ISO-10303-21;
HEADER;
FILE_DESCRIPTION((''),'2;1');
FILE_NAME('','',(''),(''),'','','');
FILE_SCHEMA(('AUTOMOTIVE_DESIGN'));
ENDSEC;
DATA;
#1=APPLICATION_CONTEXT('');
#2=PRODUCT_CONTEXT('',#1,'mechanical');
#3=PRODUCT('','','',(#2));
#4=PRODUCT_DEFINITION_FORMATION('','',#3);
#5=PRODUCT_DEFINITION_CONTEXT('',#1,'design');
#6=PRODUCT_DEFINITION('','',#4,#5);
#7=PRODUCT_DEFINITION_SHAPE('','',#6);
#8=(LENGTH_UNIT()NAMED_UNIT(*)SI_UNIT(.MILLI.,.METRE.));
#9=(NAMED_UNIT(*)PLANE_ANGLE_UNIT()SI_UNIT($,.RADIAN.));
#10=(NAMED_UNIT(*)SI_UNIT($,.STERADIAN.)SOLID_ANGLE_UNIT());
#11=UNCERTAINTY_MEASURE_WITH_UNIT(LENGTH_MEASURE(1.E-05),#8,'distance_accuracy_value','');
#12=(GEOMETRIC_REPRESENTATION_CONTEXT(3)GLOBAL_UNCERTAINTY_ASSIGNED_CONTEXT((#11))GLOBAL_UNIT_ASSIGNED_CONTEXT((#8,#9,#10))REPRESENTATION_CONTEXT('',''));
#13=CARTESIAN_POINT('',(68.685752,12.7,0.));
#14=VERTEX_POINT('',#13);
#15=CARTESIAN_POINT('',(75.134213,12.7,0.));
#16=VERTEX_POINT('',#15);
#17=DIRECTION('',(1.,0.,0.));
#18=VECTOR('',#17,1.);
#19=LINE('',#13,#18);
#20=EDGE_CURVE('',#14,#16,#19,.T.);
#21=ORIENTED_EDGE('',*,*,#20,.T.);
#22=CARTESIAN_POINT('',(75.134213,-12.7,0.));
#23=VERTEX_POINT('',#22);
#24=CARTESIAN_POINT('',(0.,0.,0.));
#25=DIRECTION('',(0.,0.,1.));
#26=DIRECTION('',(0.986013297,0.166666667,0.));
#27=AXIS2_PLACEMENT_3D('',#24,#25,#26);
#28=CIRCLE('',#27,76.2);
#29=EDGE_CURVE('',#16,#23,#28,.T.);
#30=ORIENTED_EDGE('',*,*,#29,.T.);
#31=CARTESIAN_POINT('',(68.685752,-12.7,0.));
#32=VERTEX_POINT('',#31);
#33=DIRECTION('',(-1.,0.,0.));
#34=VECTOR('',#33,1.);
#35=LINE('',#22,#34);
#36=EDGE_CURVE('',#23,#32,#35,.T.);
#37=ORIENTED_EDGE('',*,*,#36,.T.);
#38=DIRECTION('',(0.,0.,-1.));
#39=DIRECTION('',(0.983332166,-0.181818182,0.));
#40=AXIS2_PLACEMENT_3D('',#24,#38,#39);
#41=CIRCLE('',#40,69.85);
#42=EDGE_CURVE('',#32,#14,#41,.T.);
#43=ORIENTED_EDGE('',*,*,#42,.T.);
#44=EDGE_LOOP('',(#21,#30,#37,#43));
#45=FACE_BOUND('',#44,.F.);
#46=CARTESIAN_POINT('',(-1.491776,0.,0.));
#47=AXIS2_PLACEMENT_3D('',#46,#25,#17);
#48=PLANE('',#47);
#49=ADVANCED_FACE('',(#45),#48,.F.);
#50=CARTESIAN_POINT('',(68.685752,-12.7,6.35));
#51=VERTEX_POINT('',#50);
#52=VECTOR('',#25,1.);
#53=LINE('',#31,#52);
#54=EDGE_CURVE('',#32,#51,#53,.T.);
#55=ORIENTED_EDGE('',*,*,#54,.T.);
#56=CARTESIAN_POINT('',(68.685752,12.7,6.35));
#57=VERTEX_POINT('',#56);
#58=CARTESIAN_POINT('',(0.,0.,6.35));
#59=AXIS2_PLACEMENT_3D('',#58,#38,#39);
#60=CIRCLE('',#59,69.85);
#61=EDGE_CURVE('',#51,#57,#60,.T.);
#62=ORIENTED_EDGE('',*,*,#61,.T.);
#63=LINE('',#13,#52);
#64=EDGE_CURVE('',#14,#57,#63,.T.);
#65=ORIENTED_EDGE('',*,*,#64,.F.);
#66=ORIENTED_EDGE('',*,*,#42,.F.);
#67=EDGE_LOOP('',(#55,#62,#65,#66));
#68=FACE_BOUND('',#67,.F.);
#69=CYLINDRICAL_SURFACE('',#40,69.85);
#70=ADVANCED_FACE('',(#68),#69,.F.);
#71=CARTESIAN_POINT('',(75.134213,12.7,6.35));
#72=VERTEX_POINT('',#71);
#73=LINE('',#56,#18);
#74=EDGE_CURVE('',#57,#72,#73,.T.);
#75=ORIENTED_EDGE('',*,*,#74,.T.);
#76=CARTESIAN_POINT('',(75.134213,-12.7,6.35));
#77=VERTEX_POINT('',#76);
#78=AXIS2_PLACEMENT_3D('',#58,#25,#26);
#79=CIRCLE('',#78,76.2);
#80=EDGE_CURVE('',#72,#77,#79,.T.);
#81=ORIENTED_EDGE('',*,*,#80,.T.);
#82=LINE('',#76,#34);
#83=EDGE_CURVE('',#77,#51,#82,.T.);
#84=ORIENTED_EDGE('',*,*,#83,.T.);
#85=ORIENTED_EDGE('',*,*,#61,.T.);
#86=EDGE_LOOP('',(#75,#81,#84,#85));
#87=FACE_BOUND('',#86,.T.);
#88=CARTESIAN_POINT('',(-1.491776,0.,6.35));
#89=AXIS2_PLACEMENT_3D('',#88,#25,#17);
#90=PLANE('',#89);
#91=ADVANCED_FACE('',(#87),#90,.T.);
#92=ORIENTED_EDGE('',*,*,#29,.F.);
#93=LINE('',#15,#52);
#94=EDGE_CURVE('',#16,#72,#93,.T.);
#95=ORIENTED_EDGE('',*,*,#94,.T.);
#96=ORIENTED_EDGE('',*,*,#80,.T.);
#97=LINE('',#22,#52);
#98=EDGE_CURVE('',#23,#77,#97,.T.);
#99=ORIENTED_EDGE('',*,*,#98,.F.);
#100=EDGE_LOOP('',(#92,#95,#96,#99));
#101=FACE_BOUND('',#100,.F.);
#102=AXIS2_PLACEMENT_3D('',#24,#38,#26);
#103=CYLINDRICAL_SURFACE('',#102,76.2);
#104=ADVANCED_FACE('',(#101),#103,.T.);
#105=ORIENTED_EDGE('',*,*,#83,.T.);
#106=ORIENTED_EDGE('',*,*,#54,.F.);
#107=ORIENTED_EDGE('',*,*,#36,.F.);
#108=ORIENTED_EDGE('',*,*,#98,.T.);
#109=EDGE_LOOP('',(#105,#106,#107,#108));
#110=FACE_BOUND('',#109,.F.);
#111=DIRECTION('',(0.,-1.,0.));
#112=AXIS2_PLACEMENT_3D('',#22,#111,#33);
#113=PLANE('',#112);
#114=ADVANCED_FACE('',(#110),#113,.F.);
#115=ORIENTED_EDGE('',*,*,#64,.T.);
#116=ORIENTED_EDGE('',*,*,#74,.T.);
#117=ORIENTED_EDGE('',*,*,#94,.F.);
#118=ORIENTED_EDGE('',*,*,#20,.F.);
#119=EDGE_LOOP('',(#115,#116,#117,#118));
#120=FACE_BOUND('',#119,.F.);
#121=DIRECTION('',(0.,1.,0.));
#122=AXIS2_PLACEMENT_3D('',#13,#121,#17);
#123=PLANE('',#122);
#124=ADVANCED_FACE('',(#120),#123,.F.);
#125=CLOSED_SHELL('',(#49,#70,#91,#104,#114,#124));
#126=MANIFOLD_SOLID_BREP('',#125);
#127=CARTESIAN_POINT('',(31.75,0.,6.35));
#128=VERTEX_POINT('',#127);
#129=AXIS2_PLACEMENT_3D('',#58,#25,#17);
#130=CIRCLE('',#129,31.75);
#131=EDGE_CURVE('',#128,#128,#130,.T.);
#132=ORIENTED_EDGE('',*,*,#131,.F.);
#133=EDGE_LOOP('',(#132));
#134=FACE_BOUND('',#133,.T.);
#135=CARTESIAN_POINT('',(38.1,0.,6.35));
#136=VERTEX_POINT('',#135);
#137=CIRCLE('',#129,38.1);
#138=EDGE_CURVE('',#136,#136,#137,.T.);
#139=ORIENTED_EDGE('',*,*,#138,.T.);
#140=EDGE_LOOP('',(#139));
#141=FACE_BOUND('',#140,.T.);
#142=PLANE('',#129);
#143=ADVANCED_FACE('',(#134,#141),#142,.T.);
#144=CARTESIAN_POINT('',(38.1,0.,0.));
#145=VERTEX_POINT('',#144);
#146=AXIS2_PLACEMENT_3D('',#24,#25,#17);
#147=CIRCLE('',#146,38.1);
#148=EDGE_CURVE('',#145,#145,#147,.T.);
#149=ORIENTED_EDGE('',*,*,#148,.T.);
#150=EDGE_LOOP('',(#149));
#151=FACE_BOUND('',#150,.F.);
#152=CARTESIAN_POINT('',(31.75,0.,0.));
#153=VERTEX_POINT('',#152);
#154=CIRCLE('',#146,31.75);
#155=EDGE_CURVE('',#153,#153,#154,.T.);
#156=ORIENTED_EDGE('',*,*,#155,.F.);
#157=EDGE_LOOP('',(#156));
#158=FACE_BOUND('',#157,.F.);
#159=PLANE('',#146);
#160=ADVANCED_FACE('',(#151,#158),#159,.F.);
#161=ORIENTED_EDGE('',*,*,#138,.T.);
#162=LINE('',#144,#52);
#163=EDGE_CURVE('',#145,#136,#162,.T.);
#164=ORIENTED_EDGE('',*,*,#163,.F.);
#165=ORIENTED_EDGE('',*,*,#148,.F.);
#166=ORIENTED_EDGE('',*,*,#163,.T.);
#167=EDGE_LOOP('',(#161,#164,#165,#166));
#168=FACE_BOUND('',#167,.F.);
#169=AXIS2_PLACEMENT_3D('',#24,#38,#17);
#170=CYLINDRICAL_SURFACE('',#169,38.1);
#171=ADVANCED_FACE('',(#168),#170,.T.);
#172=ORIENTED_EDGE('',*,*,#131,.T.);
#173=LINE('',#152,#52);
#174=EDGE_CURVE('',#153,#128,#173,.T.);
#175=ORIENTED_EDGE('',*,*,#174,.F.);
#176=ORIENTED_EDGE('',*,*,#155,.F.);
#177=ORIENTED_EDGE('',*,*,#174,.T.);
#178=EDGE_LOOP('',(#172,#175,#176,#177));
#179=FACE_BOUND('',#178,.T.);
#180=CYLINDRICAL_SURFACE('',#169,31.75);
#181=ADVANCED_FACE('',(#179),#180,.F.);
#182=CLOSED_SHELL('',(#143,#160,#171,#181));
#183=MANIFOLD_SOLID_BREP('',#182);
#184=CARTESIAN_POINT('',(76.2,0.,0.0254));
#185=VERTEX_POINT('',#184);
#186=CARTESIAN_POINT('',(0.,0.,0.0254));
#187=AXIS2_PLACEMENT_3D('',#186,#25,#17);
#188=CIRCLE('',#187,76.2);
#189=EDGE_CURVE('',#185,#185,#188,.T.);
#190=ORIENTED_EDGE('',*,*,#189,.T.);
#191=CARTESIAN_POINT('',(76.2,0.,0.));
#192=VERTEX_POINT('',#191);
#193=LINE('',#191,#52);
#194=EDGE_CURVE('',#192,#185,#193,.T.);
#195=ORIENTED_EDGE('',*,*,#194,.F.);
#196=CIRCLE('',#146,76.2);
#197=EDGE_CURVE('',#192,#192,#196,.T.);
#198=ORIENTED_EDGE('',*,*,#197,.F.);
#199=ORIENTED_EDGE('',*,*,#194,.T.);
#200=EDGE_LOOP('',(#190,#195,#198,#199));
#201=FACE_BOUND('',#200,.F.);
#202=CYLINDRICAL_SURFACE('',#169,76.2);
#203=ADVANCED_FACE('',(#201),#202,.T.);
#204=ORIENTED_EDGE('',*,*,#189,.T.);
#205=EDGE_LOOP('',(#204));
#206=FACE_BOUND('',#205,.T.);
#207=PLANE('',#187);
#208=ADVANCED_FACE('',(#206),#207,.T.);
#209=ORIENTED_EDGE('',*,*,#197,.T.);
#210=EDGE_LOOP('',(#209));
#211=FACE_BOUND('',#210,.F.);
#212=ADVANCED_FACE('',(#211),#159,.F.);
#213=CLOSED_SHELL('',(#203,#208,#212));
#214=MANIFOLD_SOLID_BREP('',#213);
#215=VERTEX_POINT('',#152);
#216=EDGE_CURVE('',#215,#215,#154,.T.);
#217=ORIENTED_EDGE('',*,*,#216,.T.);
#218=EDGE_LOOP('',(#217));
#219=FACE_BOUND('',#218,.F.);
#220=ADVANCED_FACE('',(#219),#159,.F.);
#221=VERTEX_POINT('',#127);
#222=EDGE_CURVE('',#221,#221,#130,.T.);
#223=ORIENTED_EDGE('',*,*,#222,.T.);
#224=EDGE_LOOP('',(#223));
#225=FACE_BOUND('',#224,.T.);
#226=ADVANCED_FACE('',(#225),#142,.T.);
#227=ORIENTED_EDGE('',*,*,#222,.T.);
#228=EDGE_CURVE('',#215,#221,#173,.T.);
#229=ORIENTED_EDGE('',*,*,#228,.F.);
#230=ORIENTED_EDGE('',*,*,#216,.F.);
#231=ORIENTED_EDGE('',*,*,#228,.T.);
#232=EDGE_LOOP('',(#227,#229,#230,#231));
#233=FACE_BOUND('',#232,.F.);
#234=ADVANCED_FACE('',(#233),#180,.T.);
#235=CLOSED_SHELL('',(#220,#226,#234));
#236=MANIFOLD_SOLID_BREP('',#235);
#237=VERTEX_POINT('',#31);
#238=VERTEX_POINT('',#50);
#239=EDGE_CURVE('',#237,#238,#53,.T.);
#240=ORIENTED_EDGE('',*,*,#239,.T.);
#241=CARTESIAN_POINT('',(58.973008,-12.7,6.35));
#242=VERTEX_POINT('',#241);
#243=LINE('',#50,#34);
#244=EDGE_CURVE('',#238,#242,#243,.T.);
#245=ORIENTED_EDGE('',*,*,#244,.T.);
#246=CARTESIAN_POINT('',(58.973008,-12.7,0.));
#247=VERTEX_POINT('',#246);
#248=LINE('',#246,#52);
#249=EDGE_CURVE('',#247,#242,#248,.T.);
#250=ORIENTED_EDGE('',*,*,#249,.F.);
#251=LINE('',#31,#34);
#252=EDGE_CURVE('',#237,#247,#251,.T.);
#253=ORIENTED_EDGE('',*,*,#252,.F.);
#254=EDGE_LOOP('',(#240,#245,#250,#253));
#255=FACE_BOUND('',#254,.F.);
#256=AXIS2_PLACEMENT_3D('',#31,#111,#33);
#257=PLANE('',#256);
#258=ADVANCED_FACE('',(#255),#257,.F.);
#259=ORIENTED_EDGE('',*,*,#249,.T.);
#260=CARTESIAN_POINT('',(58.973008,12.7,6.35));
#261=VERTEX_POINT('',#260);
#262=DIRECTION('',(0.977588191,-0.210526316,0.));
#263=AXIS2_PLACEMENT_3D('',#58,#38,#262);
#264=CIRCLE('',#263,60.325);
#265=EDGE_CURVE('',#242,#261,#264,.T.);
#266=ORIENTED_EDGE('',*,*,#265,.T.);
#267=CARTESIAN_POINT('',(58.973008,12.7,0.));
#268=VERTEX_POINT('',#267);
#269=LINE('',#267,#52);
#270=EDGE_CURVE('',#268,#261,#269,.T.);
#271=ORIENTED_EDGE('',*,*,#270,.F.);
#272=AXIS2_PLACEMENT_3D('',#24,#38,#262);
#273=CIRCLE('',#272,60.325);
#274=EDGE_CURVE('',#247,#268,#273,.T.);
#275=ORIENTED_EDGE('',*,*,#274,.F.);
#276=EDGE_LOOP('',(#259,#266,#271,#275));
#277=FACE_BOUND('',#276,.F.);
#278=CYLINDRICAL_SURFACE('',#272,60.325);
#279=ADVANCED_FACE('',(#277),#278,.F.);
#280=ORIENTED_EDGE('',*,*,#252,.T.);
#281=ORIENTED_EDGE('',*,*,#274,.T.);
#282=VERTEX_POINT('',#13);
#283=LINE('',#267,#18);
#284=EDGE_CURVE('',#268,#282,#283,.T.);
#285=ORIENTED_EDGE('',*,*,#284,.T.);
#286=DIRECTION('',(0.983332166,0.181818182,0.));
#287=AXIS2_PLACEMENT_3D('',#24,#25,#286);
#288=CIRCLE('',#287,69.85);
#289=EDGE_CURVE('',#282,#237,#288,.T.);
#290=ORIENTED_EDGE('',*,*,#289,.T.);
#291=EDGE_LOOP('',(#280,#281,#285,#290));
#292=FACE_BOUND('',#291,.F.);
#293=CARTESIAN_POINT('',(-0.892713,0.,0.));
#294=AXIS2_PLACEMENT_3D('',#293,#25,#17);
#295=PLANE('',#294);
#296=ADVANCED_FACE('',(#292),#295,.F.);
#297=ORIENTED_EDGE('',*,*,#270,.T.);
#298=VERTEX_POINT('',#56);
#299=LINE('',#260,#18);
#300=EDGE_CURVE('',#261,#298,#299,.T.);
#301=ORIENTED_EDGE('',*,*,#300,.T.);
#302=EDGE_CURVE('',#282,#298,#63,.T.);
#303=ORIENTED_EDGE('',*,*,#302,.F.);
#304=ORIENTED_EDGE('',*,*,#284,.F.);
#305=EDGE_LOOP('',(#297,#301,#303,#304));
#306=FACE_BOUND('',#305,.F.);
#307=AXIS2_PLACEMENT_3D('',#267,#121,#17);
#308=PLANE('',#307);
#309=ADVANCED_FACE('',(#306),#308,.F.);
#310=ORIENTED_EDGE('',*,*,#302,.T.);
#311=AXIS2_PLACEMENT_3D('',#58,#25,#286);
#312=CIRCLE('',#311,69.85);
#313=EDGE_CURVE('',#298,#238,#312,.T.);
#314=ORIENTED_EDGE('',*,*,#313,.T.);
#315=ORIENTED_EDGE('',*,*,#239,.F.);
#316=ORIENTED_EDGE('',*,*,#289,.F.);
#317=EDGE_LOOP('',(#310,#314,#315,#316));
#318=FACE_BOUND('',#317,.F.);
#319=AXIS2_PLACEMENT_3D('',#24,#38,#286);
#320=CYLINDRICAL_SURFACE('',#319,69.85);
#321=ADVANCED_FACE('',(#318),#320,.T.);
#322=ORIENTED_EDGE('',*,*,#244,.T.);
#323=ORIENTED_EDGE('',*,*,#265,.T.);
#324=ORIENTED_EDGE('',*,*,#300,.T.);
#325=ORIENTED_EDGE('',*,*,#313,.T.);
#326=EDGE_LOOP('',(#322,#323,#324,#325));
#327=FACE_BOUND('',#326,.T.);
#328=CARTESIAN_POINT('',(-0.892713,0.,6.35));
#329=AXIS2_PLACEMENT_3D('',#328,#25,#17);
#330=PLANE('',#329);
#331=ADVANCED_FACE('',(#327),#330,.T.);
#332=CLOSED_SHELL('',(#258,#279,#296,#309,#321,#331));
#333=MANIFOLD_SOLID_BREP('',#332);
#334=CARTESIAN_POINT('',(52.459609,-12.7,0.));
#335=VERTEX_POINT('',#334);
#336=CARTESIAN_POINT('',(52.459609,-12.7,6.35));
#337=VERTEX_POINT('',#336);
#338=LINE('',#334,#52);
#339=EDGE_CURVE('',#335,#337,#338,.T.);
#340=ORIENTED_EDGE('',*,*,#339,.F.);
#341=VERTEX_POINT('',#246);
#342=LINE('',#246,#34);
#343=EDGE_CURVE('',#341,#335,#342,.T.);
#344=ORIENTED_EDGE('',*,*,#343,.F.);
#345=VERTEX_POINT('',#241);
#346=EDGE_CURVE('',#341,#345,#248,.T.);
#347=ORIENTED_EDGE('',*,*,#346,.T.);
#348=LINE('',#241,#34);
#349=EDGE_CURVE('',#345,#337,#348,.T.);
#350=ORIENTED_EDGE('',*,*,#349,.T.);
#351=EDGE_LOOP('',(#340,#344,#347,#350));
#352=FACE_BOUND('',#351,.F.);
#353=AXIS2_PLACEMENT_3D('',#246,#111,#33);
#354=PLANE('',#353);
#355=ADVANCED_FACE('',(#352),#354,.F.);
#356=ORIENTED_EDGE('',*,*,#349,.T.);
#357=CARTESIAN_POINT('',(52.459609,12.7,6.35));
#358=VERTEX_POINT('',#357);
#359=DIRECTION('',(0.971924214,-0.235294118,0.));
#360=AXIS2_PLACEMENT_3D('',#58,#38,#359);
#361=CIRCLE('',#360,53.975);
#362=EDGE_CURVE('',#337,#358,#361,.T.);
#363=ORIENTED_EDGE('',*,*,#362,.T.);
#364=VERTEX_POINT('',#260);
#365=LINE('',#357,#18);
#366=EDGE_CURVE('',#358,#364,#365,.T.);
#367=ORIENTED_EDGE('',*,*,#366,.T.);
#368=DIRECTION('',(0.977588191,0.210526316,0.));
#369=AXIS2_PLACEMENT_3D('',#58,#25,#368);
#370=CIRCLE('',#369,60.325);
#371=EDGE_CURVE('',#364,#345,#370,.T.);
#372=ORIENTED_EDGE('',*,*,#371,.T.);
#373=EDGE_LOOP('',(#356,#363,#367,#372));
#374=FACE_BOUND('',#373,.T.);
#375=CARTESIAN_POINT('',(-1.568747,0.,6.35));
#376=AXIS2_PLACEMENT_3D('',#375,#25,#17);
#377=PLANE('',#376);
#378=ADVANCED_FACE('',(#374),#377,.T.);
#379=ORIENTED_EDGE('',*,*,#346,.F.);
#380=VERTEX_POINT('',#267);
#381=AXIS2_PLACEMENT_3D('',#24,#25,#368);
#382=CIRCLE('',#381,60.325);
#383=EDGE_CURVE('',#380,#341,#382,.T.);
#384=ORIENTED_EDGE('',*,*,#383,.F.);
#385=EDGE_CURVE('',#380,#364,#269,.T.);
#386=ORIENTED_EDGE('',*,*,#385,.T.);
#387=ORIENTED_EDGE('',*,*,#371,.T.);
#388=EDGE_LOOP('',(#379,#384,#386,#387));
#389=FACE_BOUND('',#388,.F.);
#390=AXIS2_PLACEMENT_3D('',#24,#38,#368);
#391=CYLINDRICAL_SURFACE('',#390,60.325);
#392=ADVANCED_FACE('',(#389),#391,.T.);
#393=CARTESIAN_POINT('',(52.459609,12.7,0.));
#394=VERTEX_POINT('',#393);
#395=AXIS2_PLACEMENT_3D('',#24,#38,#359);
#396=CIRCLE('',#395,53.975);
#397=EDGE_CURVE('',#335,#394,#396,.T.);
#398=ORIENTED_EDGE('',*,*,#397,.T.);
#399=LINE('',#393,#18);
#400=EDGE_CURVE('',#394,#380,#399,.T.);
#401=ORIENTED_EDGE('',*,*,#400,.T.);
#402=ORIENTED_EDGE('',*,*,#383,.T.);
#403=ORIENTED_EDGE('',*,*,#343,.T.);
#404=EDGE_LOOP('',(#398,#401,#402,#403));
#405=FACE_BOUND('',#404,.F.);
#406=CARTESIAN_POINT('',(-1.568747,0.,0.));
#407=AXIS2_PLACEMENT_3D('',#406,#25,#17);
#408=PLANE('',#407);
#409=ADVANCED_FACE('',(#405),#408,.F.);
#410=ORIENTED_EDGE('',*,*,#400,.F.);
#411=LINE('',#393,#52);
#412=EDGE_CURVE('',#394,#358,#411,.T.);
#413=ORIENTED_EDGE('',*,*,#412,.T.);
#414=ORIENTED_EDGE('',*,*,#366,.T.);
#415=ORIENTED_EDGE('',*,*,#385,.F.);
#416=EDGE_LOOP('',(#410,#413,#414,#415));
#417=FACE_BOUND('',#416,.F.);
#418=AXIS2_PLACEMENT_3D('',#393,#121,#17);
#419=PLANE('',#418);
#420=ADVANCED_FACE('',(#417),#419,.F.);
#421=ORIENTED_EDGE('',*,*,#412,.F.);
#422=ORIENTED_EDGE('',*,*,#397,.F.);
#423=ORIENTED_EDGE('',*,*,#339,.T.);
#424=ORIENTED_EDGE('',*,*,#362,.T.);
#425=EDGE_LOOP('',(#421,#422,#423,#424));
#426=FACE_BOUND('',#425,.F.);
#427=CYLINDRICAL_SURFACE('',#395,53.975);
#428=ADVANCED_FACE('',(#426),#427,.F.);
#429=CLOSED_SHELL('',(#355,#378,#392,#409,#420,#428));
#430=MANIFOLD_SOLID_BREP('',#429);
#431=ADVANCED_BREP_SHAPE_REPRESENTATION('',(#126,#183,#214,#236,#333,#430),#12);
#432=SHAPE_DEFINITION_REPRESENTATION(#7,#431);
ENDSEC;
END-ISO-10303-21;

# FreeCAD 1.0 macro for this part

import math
import FreeCAD as App
import Part
import Sketcher

V = App.Vector
Q = App.Units.Quantity

doc = App.newDocument("Part")
body = doc.addObject("PartDesign::Body", "Body")

sketch1 = doc.addObject("Sketcher::SketchObject", "Sketch")
body.addObject(sketch1)
sketch1.AttachmentSupport = (doc.XY_Plane, [""])
sketch1.MapMode = "FlatFace"
sketch1.addGeometry(Part.LineSegment(V(58.973008, 12.7, 0), V(68.685752, 12.7, 0)), False)
sketch1.addGeometry(Part.ArcOfCircle(Part.Circle(V(0, 0, 0), V(0, 0, 1), 69.85), math.radians(10.475682), math.radians(349.524318)), False)
sketch1.addGeometry(Part.LineSegment(V(68.685752, -12.7, 0), V(58.973008, -12.7, 0)), False)
sketch1.addGeometry(Part.ArcOfCircle(Part.Circle(V(0, 0, 0), V(0, 0, 1), 60.325), math.radians(12.153197), math.radians(347.846803)), False)
sketch1.addConstraint(Sketcher.Constraint("Coincident", 0, 2, 1, 1))
sketch1.addConstraint(Sketcher.Constraint("Coincident", 1, 2, 2, 1))
sketch1.addConstraint(Sketcher.Constraint("Coincident", 2, 2, 3, 2))
sketch1.addConstraint(Sketcher.Constraint("Coincident", 3, 1, 0, 1))
sketch1.addConstraint(Sketcher.Constraint("Horizontal", 0))
sketch1.addConstraint(Sketcher.Constraint("Horizontal", 2))
sketch1.addConstraint(Sketcher.Constraint("Coincident", 1, 3, -1, 1))
sketch1.addConstraint(Sketcher.Constraint("Coincident", 3, 3, -1, 1))
sketch1.addConstraint(Sketcher.Constraint("Vertical", 0, 2, 1, 2))
sketch1.addConstraint(Sketcher.Constraint("Radius", 1, Q("2.75 in")))
sketch1.addConstraint(Sketcher.Constraint("Radius", 3, Q("2.375 in")))
sketch1.addConstraint(Sketcher.Constraint("DistanceY", 1, 2, 0, 2, Q("1 in")))
pad1 = doc.addObject("PartDesign::Pad", "Pad")
body.addObject(pad1)
pad1.Profile = sketch1
pad1.Length = Q("0.25 in")
body2 = doc.addObject("PartDesign::Body", "Body001")

sketch2 = doc.addObject("Sketcher::SketchObject", "Sketch001")
body2.addObject(sketch2)
sketch2.AttachmentSupport = (doc.getObject("XY_Plane001"), [""])
sketch2.MapMode = "FlatFace"
sketch2.addGeometry(Part.Circle(V(0, 0, 0), V(0, 0, 1), 31.75), False)
sketch2.addConstraint(Sketcher.Constraint("Coincident", 0, 3, -1, 1))
sketch2.addConstraint(Sketcher.Constraint("Diameter", 0, Q("2.5 in")))
pad2 = doc.addObject("PartDesign::Pad", "Pad001")
body2.addObject(pad2)
pad2.Profile = sketch2
pad2.Length = Q("0.25 in")
body3 = doc.addObject("PartDesign::Body", "Body002")

sketch3 = doc.addObject("Sketcher::SketchObject", "Sketch002")
body3.addObject(sketch3)
sketch3.AttachmentSupport = (doc.getObject("XY_Plane002"), [""])
sketch3.MapMode = "FlatFace"
sketch3.addGeometry(Part.Circle(V(0, 0, 0), V(0, 0, 1), 38.1), False)
sketch3.addGeometry(Part.Circle(V(0, 0, 0), V(0, 0, 1), 31.75), False)
sketch3.addConstraint(Sketcher.Constraint("Coincident", 0, 3, -1, 1))
sketch3.addConstraint(Sketcher.Constraint("Coincident", 1, 3, -1, 1))
sketch3.addConstraint(Sketcher.Constraint("Diameter", 0, Q("3 in")))
sketch3.addConstraint(Sketcher.Constraint("Diameter", 1, Q("2.5 in")))
pad3 = doc.addObject("PartDesign::Pad", "Pad002")
body3.addObject(pad3)
pad3.Profile = sketch3
pad3.Length = Q("0.25 in")
body4 = doc.addObject("PartDesign::Body", "Body003")

sketch4 = doc.addObject("Sketcher::SketchObject", "Sketch003")
body4.addObject(sketch4)
sketch4.AttachmentSupport = (doc.getObject("XY_Plane003"), [""])
sketch4.MapMode = "FlatFace"
sketch4.addGeometry(Part.LineSegment(V(52.459609, 12.7, 0), V(58.973008, 12.7, 0)), False)
sketch4.addGeometry(Part.ArcOfCircle(Part.Circle(V(0, 0, 0), V(0, 0, 1), 60.325), math.radians(12.153197), math.radians(347.846803)), False)
sketch4.addGeometry(Part.LineSegment(V(58.973008, -12.7, 0), V(52.459609, -12.7, 0)), False)
sketch4.addGeometry(Part.ArcOfCircle(Part.Circle(V(0, 0, 0), V(0, 0, 1), 53.975), math.radians(13.608961), math.radians(346.391039)), False)
sketch4.addConstraint(Sketcher.Constraint("Coincident", 0, 2, 1, 1))
sketch4.addConstraint(Sketcher.Constraint("Coincident", 1, 2, 2, 1))
sketch4.addConstraint(Sketcher.Constraint("Coincident", 2, 2, 3, 2))
sketch4.addConstraint(Sketcher.Constraint("Coincident", 3, 1, 0, 1))
sketch4.addConstraint(Sketcher.Constraint("Horizontal", 0))
sketch4.addConstraint(Sketcher.Constraint("Horizontal", 2))
sketch4.addConstraint(Sketcher.Constraint("Coincident", 1, 3, -1, 1))
sketch4.addConstraint(Sketcher.Constraint("Coincident", 3, 3, -1, 1))
sketch4.addConstraint(Sketcher.Constraint("Vertical", 0, 2, 1, 2))
sketch4.addConstraint(Sketcher.Constraint("Radius", 1, Q("2.375 in")))
sketch4.addConstraint(Sketcher.Constraint("Radius", 3, Q("2.125 in")))
sketch4.addConstraint(Sketcher.Constraint("DistanceY", 1, 2, 0, 2, Q("1 in")))
pad4 = doc.addObject("PartDesign::Pad", "Pad003")
body4.addObject(pad4)
pad4.Profile = sketch4
pad4.Length = Q("0.25 in")
body5 = doc.addObject("PartDesign::Body", "Body004")

sketch5 = doc.addObject("Sketcher::SketchObject", "Sketch004")
body5.addObject(sketch5)
sketch5.AttachmentSupport = (doc.getObject("XY_Plane004"), [""])
sketch5.MapMode = "FlatFace"
sketch5.addGeometry(Part.LineSegment(V(68.685752, 12.7, 0), V(75.134213, 12.7, 0)), False)
sketch5.addGeometry(Part.ArcOfCircle(Part.Circle(V(0, 0, 0), V(0, 0, 1), 76.2), math.radians(9.594068), math.radians(350.405932)), False)
sketch5.addGeometry(Part.LineSegment(V(75.134213, -12.7, 0), V(68.685752, -12.7, 0)), False)
sketch5.addGeometry(Part.ArcOfCircle(Part.Circle(V(0, 0, 0), V(0, 0, 1), 69.85), math.radians(10.475682), math.radians(349.524318)), False)
sketch5.addConstraint(Sketcher.Constraint("Coincident", 0, 2, 1, 1))
sketch5.addConstraint(Sketcher.Constraint("Coincident", 1, 2, 2, 1))
sketch5.addConstraint(Sketcher.Constraint("Coincident", 2, 2, 3, 2))
sketch5.addConstraint(Sketcher.Constraint("Coincident", 3, 1, 0, 1))
sketch5.addConstraint(Sketcher.Constraint("Horizontal", 0))
sketch5.addConstraint(Sketcher.Constraint("Horizontal", 2))
sketch5.addConstraint(Sketcher.Constraint("Coincident", 1, 3, -1, 1))
sketch5.addConstraint(Sketcher.Constraint("Coincident", 3, 3, -1, 1))
sketch5.addConstraint(Sketcher.Constraint("Vertical", 0, 2, 1, 2))
sketch5.addConstraint(Sketcher.Constraint("Radius", 1, Q("3 in")))
sketch5.addConstraint(Sketcher.Constraint("Radius", 3, Q("2.75 in")))
sketch5.addConstraint(Sketcher.Constraint("DistanceY", 1, 2, 0, 2, Q("1 in")))
pad5 = doc.addObject("PartDesign::Pad", "Pad004")
body5.addObject(pad5)
pad5.Profile = sketch5
pad5.Length = Q("0.25 in")
body6 = doc.addObject("PartDesign::Body", "Body005")

sketch6 = doc.addObject("Sketcher::SketchObject", "Sketch005")
body6.addObject(sketch6)
sketch6.AttachmentSupport = (doc.getObject("XY_Plane005"), [""])
sketch6.MapMode = "FlatFace"
sketch6.addGeometry(Part.Circle(V(0, 0, 0), V(0, 0, 1), 76.2), False)
sketch6.addConstraint(Sketcher.Constraint("Coincident", 0, 3, -1, 1))
sketch6.addConstraint(Sketcher.Constraint("Diameter", 0, Q("6 in")))
pad6 = doc.addObject("PartDesign::Pad", "Pad005")
body6.addObject(pad6)
pad6.Profile = sketch6
pad6.Length = Q("0.001 in")

doc.recompute()
